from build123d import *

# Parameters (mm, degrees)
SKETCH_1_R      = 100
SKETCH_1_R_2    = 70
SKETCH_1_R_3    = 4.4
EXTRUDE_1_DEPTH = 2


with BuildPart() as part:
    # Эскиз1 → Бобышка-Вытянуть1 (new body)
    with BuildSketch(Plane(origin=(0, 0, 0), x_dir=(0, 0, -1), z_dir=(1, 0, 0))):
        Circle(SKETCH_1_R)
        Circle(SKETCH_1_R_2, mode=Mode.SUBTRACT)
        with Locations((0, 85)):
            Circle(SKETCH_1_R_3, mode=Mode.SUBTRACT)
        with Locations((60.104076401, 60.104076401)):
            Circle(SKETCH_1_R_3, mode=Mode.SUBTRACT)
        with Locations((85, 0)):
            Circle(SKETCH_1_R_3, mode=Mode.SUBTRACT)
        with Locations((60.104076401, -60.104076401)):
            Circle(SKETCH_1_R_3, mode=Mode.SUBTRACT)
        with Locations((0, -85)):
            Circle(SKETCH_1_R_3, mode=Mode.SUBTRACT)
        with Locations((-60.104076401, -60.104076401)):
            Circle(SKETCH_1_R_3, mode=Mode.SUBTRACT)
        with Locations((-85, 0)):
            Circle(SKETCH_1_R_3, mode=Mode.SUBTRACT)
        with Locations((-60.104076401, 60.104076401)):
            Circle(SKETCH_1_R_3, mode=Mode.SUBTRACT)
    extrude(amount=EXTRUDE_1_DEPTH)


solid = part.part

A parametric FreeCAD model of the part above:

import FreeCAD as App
import Part
import Sketcher

doc = App.newDocument("Part")
body = doc.addObject("PartDesign::Body", "Body")

sketch1 = body.newObject("Sketcher::SketchObject", "Sketch")
sketch1.AttachmentSupport = (doc.getObject("YZ_Plane"), [""])
sketch1.MapMode = "FlatFace"
sketch1.addGeometry([
    Part.Circle(App.Vector(0, 0, 0), App.Vector(0, 0, 1), 100),
    Part.Circle(App.Vector(-60.1, 60.1, 0), App.Vector(0, 0, 1), 4.4),
    Part.Circle(App.Vector(-85, 0, 0), App.Vector(0, 0, 1), 4.4),
    Part.Circle(App.Vector(-60.1, -60.1, 0), App.Vector(0, 0, 1), 4.4),
    Part.Circle(App.Vector(0, 85, 0), App.Vector(0, 0, 1), 4.4),
    Part.Circle(App.Vector(60.1, 60.1, 0), App.Vector(0, 0, 1), 4.4),
    Part.Circle(App.Vector(0, 0, 0), App.Vector(0, 0, 1), 70),
    Part.Circle(App.Vector(0, -85, 0), App.Vector(0, 0, 1), 4.4),
    Part.Circle(App.Vector(85, 0, 0), App.Vector(0, 0, 1), 4.4),
    Part.Circle(App.Vector(60.1, -60.1, 0), App.Vector(0, 0, 1), 4.4),
], False)
sketch1.addConstraint([
    Sketcher.Constraint("Coincident", 0, 3, -1, 1),
    Sketcher.Constraint("Coincident", 6, 3, -1, 1),
    Sketcher.Constraint("Equal", 1, 2),
    Sketcher.Constraint("Equal", 2, 3),
    Sketcher.Constraint("Equal", 3, 4),
    Sketcher.Constraint("Equal", 4, 5),
    Sketcher.Constraint("Equal", 5, 7),
    Sketcher.Constraint("Equal", 7, 8),
    Sketcher.Constraint("Equal", 8, 9),
    Sketcher.Constraint("Symmetric", 3, 3, 5, 3, -1, 1),
    Sketcher.Constraint("Symmetric", 4, 3, 7, 3, -1, 1),
    Sketcher.Constraint("Symmetric", 2, 3, 8, 3, -1, 1),
    Sketcher.Constraint("Symmetric", 1, 3, 9, 3, -1, 1),
    Sketcher.Constraint("Symmetric", 1, 3, 5, 3, -2),
    Sketcher.Constraint("PointOnObject", 2, 3, -1),
    Sketcher.Constraint("PointOnObject", 4, 3, -2),
    Sketcher.Constraint("Diameter", 0, 200.0),
    Sketcher.Constraint("Diameter", 6, 140.0),
    Sketcher.Constraint("Diameter", 1, 8.8),
    Sketcher.Constraint("DistanceX", 2, 3, -1, 1, 85.0),
    Sketcher.Constraint("DistanceY", -1, 1, 4, 3, 85.0),
    Sketcher.Constraint("DistanceX", 1, 3, -1, 1, 60.104076),
    Sketcher.Constraint("DistanceY", -1, 1, 1, 3, 60.104076),
])
pad1 = body.newObject("PartDesign::Pad", "Pad")
pad1.Profile = sketch1
pad1.Length = 2

doc.recompute()
